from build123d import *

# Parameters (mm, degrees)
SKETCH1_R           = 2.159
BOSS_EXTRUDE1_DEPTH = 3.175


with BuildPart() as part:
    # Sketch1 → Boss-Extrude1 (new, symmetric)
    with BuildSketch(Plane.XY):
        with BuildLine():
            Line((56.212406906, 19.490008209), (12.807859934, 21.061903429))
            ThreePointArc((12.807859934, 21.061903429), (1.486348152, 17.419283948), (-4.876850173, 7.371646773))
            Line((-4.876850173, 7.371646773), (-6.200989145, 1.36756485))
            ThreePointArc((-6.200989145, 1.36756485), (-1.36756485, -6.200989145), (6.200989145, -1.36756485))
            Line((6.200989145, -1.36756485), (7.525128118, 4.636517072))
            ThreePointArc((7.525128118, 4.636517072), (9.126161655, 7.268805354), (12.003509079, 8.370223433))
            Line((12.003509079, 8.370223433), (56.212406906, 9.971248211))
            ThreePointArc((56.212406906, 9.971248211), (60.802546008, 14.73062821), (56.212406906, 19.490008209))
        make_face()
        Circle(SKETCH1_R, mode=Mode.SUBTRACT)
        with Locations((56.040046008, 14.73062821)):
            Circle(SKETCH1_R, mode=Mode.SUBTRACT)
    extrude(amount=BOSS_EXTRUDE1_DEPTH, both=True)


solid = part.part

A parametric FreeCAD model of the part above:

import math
import FreeCAD as App
import Part
import Sketcher
from FreeCAD import Vector
Q = App.Units.Quantity

doc = App.newDocument("Part")
body = doc.addObject("PartDesign::Body", "Body")

sketch1 = doc.addObject("Sketcher::SketchObject", "Sketch")
body.addObject(sketch1)
sketch1.AttachmentSupport = (doc.XY_Plane, [""])
sketch1.MapMode = "FlatFace"
sketch1.addGeometry([
    Part.LineSegment(Vector(56.2, 19.5, 0), Vector(12.8, 21.1, 0)),
    Part.ArcOfCircle(Part.Circle(Vector(12.2, 3.6, 0), Vector(0, 0, 1), 17.5), math.radians(88), math.radians(168)),
    Part.LineSegment(Vector(-4.9, 7.4, 0), Vector(-6.2, 1.4, 0)),
    Part.ArcOfCircle(Part.Circle(Vector(0, 0, 0), Vector(0, 0, 1), 6.3), math.radians(168), math.radians(348)),
    Part.LineSegment(Vector(6.2, -1.4, 0), Vector(7.5, 4.6, 0)),
    Part.ArcOfCircle(Part.Circle(Vector(12.2, 3.6, 0), Vector(0, 0, 1), 4.8), math.radians(92), math.radians(168)),
    Part.LineSegment(Vector(12, 8.4, 0), Vector(56.2, 10, 0)),
    Part.ArcOfCircle(Part.Circle(Vector(56, 14.7, 0), Vector(0, 0, 1), 4.8), math.radians(-88), math.radians(88)),
    Part.Circle(Vector(0, 0, 0), Vector(0, 0, 1), 2.2),
    Part.Circle(Vector(56, 14.7, 0), Vector(0, 0, 1), 2.2),
], False)
sketch1.addConstraint([
    Sketcher.Constraint("Tangent", 0, 2, 1, 1),
    Sketcher.Constraint("Tangent", 1, 2, 2, 1),
    Sketcher.Constraint("Tangent", 2, 2, 3, 1),
    Sketcher.Constraint("Tangent", 3, 2, 4, 1),
    Sketcher.Constraint("Tangent", 4, 2, 5, 2),
    Sketcher.Constraint("Tangent", 5, 1, 6, 1),
    Sketcher.Constraint("Tangent", 6, 2, 7, 1),
    Sketcher.Constraint("Tangent", 7, 2, 0, 1),
    Sketcher.Constraint("Coincident", 3, 3, -1, 1),
    Sketcher.Constraint("Coincident", 8, 3, -1, 1),
    Sketcher.Constraint("Coincident", 5, 3, 1, 3),
    Sketcher.Constraint("Coincident", 9, 3, 7, 3),
    Sketcher.Constraint("Equal", 5, 7),
    Sketcher.Constraint("Equal", 8, 9),
    Sketcher.Constraint("Parallel", 2, 4),
    Sketcher.Constraint("Vertical", 6, 2, 7, 2),
    Sketcher.Constraint("Diameter", 8, Q("0.17 in")),
    Sketcher.Constraint("Radius", 3, Q("0.25 in")),
    Sketcher.Constraint("Radius", 1, Q("0.6875 in")),
    Sketcher.Constraint("DistanceX", 4, 2, 5, 3, Q("0.1831001 in")),
    Sketcher.Constraint("Distance", 0, Q("43.433001 mm")),
    Sketcher.Constraint("Distance", 2, Q("6.148361 mm")),
])
pad1 = doc.addObject("PartDesign::Pad", "Pad")
body.addObject(pad1)
pad1.Profile = sketch1
pad1.Length = Q("0.25 in")
pad1.Midplane = True

doc.recompute()
